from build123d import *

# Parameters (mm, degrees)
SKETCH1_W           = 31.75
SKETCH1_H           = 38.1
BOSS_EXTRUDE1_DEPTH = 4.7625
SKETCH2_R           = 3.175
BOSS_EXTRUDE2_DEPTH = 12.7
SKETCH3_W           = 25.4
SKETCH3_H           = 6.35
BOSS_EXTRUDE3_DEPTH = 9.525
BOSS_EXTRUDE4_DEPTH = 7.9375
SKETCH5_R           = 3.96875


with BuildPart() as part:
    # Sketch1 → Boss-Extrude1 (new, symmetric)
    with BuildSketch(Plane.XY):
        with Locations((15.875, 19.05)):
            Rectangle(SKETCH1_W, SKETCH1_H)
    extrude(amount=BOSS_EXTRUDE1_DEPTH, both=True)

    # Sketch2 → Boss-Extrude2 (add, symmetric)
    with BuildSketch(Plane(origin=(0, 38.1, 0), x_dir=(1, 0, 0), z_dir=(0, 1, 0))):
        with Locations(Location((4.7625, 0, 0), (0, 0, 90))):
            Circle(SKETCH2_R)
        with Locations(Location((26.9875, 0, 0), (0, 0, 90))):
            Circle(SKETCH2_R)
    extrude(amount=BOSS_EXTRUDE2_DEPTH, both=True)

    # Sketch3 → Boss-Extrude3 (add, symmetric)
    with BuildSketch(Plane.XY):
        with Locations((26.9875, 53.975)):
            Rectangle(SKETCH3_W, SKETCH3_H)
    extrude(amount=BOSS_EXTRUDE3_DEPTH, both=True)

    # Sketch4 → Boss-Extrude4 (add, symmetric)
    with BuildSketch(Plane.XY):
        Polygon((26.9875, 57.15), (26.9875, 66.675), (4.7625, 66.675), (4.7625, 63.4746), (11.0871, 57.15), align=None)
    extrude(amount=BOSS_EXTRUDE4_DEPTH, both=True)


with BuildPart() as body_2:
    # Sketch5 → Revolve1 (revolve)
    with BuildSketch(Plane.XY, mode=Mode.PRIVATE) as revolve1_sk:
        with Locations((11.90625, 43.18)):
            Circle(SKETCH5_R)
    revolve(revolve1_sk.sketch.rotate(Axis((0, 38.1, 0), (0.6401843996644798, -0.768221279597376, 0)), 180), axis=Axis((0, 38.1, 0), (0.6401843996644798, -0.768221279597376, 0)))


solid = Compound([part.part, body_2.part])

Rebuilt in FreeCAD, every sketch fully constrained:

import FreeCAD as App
import Part
import Sketcher

V = App.Vector
Q = App.Units.Quantity

doc = App.newDocument("Part")
body = doc.addObject("PartDesign::Body", "Body")

# Sketch on XY plane
sketch1 = body.newObject("Sketcher::SketchObject", "Sketch")
sketch1.AttachmentSupport = (doc.getObject("XY_Plane"), [""])
sketch1.MapMode = "FlatFace"
sketch1.addGeometry([
    Part.LineSegment(V(0, 38, 0), V(0, 0, 0)),
    Part.LineSegment(V(0, 0, 0), V(32, 0, 0)),
    Part.LineSegment(V(32, 0, 0), V(32, 38, 0)),
    Part.LineSegment(V(32, 38, 0), V(0, 38, 0)),
], False)
sketch1.addConstraint([
    Sketcher.Constraint("Coincident", 0, 2, 1, 1),
    Sketcher.Constraint("Coincident", 1, 2, 2, 1),
    Sketcher.Constraint("Coincident", 2, 2, 3, 1),
    Sketcher.Constraint("Coincident", 3, 2, 0, 1),
    Sketcher.Constraint("Vertical", 0),
    Sketcher.Constraint("Horizontal", 1),
    Sketcher.Constraint("Vertical", 2),
    Sketcher.Constraint("Horizontal", 3),
    Sketcher.Constraint("Coincident", 0, 2, -1, 1),
    Sketcher.Constraint("DistanceY", 0, 2, 0, 1, Q("1.5 in")),
    Sketcher.Constraint("DistanceX", 1, 1, 1, 2, Q("1.25 in")),
])
pad1 = body.newObject("PartDesign::Pad", "Pad")
pad1.Profile = sketch1
pad1.Length = Q("0.375 in")
pad1.Midplane = True

# Sketch on XZ plane
sketch2 = body.newObject("Sketcher::SketchObject", "Sketch001")
sketch2.AttachmentSupport = (doc.getObject("XZ_Plane"), [""])
sketch2.MapMode = "FlatFace"
sketch2.AttachmentOffset = App.Placement(V(0, 0, -1.5 * 25.4), App.Rotation())
sketch2.addGeometry([
    Part.Circle(V(4.8, 0, 0), V(0, 0, 1), 3.2),
    Part.Circle(V(27, 0, 0), V(0, 0, 1), 3.2),
], False)
sketch2.addConstraint([
    Sketcher.Constraint("Equal", 0, 1),
    Sketcher.Constraint("PointOnObject", 0, 3, -1),
    Sketcher.Constraint("PointOnObject", 1, 3, -1),
    Sketcher.Constraint("Diameter", 0, Q("0.25 in")),
    Sketcher.Constraint("DistanceX", -1, 1, 0, 3, Q("0.1875 in")),
    Sketcher.Constraint("DistanceX", -1, 1, 1, 3, Q("1.0625 in")),
])
pad2 = body.newObject("PartDesign::Pad", "Pad001")
pad2.Profile = sketch2
pad2.Length = Q("1 in")
pad2.Midplane = True

# Sketch on XY plane
sketch3 = body.newObject("Sketcher::SketchObject", "Sketch002")
sketch3.AttachmentSupport = (doc.getObject("XY_Plane"), [""])
sketch3.MapMode = "FlatFace"
sketch3.addGeometry([
    Part.LineSegment(V(14, 57, 0), V(14, 51, 0)),
    Part.LineSegment(V(14, 51, 0), V(40, 51, 0)),
    Part.LineSegment(V(40, 51, 0), V(40, 57, 0)),
    Part.LineSegment(V(40, 57, 0), V(14, 57, 0)),
], False)
sketch3.addConstraint([
    Sketcher.Constraint("Coincident", 0, 2, 1, 1),
    Sketcher.Constraint("Coincident", 1, 2, 2, 1),
    Sketcher.Constraint("Coincident", 2, 2, 3, 1),
    Sketcher.Constraint("Coincident", 3, 2, 0, 1),
    Sketcher.Constraint("Vertical", 0),
    Sketcher.Constraint("Horizontal", 1),
    Sketcher.Constraint("Vertical", 2),
    Sketcher.Constraint("Horizontal", 3),
    Sketcher.Constraint("DistanceX", 1, 1, 1, 2, Q("1 in")),
    Sketcher.Constraint("DistanceY", -1, 1, 0, 2, Q("2 in")),
    Sketcher.Constraint("DistanceY", 0, 2, 0, 1, Q("0.25 in")),
    Sketcher.Constraint("DistanceX", -1, 1, 0, 2, Q("0.5625 in")),
])
pad3 = body.newObject("PartDesign::Pad", "Pad002")
pad3.Profile = sketch3
pad3.Length = Q("0.75 in")
pad3.Midplane = True

# Sketch on XY plane
sketch4 = body.newObject("Sketcher::SketchObject", "Sketch003")
sketch4.AttachmentSupport = (doc.getObject("XY_Plane"), [""])
sketch4.MapMode = "FlatFace"
sketch4.addGeometry([
    Part.LineSegment(V(27, 57.1, 0), V(27, 66.7, 0)),  # 0
    Part.LineSegment(V(27, 66.7, 0), V(4.8, 66.7, 0)),  # 1
    Part.LineSegment(V(4.8, 66.7, 0), V(4.8, 63.5, 0)),  # 2
    Part.LineSegment(V(4.8, 63.5, 0), V(11.1, 57.1, 0)),  # 3
    Part.LineSegment(V(11.1, 57.1, 0), V(27, 57.1, 0)),  # 4
], False)
sketch4.addConstraint([
    Sketcher.Constraint("Coincident", 0, 2, 1, 1),
    Sketcher.Constraint("Coincident", 1, 2, 2, 1),
    Sketcher.Constraint("Coincident", 2, 2, 3, 1),
    Sketcher.Constraint("Coincident", 3, 2, 4, 1),
    Sketcher.Constraint("Coincident", 4, 2, 0, 1),
    Sketcher.Constraint("Vertical", 0),
    Sketcher.Constraint("Horizontal", 1),
    Sketcher.Constraint("Vertical", 2),
    Sketcher.Constraint("Horizontal", 4),
    Sketcher.Constraint("Angle", 3, Q("-45 deg")),
    Sketcher.Constraint("DistanceX", 1, 2, 1, 1, Q("0.875 in")),
    Sketcher.Constraint("DistanceX", 4, 1, 4, 2, Q("0.626 in")),
    Sketcher.Constraint("DistanceY", 0, 1, 0, 2, Q("0.375 in")),
    Sketcher.Constraint("DistanceY", -1, 1, 3, 2, Q("2.25 in")),
    Sketcher.Constraint("DistanceX", -1, 1, 0, 2, Q("1.0625 in")),
])
pad4 = body.newObject("PartDesign::Pad", "Pad003")
pad4.Profile = sketch4
pad4.Length = Q("0.625 in")
pad4.Midplane = True
body2 = doc.addObject("PartDesign::Body", "Body001")

# Sketch on XY plane
sketch5 = body2.newObject("Sketcher::SketchObject", "Sketch004")
sketch5.AttachmentSupport = (doc.getObject("XY_Plane001"), [""])
sketch5.MapMode = "FlatFace"
sketch5.addGeometry(Part.Circle(V(11.9, 43.2, 0), V(0, 0, 1), 4), False)
sketch5.addGeometry(Part.LineSegment(V(2.4, 35.2, 0), V(8.8, 27.6, 0)), True)  # axis
sketch5.addConstraint([
    Sketcher.Constraint("Diameter", 0, Q("0.3125 in")),
    Sketcher.Constraint("DistanceY", -1, 1, 0, 3, Q("1.7 in")),
    Sketcher.Constraint("DistanceX", -1, 1, 0, 3, Q("0.46875 in")),
    Sketcher.Constraint("DistanceX", -1, 1, 1, 1, Q("0.09375 in")),
    Sketcher.Constraint("DistanceY", 1, 1, 0, 3, Q("0.3125 in")),
    Sketcher.Constraint("Distance", 1, 10.0),
    Sketcher.Constraint("DistanceX", -1, 1, 1, 2, 8.783094),
])
revolution = body2.newObject("PartDesign::Revolution", "Revolution")
revolution.Profile = sketch5
revolution.ReferenceAxis = (sketch5, ["Axis0"])
revolution.Angle = 360

doc.recompute()
